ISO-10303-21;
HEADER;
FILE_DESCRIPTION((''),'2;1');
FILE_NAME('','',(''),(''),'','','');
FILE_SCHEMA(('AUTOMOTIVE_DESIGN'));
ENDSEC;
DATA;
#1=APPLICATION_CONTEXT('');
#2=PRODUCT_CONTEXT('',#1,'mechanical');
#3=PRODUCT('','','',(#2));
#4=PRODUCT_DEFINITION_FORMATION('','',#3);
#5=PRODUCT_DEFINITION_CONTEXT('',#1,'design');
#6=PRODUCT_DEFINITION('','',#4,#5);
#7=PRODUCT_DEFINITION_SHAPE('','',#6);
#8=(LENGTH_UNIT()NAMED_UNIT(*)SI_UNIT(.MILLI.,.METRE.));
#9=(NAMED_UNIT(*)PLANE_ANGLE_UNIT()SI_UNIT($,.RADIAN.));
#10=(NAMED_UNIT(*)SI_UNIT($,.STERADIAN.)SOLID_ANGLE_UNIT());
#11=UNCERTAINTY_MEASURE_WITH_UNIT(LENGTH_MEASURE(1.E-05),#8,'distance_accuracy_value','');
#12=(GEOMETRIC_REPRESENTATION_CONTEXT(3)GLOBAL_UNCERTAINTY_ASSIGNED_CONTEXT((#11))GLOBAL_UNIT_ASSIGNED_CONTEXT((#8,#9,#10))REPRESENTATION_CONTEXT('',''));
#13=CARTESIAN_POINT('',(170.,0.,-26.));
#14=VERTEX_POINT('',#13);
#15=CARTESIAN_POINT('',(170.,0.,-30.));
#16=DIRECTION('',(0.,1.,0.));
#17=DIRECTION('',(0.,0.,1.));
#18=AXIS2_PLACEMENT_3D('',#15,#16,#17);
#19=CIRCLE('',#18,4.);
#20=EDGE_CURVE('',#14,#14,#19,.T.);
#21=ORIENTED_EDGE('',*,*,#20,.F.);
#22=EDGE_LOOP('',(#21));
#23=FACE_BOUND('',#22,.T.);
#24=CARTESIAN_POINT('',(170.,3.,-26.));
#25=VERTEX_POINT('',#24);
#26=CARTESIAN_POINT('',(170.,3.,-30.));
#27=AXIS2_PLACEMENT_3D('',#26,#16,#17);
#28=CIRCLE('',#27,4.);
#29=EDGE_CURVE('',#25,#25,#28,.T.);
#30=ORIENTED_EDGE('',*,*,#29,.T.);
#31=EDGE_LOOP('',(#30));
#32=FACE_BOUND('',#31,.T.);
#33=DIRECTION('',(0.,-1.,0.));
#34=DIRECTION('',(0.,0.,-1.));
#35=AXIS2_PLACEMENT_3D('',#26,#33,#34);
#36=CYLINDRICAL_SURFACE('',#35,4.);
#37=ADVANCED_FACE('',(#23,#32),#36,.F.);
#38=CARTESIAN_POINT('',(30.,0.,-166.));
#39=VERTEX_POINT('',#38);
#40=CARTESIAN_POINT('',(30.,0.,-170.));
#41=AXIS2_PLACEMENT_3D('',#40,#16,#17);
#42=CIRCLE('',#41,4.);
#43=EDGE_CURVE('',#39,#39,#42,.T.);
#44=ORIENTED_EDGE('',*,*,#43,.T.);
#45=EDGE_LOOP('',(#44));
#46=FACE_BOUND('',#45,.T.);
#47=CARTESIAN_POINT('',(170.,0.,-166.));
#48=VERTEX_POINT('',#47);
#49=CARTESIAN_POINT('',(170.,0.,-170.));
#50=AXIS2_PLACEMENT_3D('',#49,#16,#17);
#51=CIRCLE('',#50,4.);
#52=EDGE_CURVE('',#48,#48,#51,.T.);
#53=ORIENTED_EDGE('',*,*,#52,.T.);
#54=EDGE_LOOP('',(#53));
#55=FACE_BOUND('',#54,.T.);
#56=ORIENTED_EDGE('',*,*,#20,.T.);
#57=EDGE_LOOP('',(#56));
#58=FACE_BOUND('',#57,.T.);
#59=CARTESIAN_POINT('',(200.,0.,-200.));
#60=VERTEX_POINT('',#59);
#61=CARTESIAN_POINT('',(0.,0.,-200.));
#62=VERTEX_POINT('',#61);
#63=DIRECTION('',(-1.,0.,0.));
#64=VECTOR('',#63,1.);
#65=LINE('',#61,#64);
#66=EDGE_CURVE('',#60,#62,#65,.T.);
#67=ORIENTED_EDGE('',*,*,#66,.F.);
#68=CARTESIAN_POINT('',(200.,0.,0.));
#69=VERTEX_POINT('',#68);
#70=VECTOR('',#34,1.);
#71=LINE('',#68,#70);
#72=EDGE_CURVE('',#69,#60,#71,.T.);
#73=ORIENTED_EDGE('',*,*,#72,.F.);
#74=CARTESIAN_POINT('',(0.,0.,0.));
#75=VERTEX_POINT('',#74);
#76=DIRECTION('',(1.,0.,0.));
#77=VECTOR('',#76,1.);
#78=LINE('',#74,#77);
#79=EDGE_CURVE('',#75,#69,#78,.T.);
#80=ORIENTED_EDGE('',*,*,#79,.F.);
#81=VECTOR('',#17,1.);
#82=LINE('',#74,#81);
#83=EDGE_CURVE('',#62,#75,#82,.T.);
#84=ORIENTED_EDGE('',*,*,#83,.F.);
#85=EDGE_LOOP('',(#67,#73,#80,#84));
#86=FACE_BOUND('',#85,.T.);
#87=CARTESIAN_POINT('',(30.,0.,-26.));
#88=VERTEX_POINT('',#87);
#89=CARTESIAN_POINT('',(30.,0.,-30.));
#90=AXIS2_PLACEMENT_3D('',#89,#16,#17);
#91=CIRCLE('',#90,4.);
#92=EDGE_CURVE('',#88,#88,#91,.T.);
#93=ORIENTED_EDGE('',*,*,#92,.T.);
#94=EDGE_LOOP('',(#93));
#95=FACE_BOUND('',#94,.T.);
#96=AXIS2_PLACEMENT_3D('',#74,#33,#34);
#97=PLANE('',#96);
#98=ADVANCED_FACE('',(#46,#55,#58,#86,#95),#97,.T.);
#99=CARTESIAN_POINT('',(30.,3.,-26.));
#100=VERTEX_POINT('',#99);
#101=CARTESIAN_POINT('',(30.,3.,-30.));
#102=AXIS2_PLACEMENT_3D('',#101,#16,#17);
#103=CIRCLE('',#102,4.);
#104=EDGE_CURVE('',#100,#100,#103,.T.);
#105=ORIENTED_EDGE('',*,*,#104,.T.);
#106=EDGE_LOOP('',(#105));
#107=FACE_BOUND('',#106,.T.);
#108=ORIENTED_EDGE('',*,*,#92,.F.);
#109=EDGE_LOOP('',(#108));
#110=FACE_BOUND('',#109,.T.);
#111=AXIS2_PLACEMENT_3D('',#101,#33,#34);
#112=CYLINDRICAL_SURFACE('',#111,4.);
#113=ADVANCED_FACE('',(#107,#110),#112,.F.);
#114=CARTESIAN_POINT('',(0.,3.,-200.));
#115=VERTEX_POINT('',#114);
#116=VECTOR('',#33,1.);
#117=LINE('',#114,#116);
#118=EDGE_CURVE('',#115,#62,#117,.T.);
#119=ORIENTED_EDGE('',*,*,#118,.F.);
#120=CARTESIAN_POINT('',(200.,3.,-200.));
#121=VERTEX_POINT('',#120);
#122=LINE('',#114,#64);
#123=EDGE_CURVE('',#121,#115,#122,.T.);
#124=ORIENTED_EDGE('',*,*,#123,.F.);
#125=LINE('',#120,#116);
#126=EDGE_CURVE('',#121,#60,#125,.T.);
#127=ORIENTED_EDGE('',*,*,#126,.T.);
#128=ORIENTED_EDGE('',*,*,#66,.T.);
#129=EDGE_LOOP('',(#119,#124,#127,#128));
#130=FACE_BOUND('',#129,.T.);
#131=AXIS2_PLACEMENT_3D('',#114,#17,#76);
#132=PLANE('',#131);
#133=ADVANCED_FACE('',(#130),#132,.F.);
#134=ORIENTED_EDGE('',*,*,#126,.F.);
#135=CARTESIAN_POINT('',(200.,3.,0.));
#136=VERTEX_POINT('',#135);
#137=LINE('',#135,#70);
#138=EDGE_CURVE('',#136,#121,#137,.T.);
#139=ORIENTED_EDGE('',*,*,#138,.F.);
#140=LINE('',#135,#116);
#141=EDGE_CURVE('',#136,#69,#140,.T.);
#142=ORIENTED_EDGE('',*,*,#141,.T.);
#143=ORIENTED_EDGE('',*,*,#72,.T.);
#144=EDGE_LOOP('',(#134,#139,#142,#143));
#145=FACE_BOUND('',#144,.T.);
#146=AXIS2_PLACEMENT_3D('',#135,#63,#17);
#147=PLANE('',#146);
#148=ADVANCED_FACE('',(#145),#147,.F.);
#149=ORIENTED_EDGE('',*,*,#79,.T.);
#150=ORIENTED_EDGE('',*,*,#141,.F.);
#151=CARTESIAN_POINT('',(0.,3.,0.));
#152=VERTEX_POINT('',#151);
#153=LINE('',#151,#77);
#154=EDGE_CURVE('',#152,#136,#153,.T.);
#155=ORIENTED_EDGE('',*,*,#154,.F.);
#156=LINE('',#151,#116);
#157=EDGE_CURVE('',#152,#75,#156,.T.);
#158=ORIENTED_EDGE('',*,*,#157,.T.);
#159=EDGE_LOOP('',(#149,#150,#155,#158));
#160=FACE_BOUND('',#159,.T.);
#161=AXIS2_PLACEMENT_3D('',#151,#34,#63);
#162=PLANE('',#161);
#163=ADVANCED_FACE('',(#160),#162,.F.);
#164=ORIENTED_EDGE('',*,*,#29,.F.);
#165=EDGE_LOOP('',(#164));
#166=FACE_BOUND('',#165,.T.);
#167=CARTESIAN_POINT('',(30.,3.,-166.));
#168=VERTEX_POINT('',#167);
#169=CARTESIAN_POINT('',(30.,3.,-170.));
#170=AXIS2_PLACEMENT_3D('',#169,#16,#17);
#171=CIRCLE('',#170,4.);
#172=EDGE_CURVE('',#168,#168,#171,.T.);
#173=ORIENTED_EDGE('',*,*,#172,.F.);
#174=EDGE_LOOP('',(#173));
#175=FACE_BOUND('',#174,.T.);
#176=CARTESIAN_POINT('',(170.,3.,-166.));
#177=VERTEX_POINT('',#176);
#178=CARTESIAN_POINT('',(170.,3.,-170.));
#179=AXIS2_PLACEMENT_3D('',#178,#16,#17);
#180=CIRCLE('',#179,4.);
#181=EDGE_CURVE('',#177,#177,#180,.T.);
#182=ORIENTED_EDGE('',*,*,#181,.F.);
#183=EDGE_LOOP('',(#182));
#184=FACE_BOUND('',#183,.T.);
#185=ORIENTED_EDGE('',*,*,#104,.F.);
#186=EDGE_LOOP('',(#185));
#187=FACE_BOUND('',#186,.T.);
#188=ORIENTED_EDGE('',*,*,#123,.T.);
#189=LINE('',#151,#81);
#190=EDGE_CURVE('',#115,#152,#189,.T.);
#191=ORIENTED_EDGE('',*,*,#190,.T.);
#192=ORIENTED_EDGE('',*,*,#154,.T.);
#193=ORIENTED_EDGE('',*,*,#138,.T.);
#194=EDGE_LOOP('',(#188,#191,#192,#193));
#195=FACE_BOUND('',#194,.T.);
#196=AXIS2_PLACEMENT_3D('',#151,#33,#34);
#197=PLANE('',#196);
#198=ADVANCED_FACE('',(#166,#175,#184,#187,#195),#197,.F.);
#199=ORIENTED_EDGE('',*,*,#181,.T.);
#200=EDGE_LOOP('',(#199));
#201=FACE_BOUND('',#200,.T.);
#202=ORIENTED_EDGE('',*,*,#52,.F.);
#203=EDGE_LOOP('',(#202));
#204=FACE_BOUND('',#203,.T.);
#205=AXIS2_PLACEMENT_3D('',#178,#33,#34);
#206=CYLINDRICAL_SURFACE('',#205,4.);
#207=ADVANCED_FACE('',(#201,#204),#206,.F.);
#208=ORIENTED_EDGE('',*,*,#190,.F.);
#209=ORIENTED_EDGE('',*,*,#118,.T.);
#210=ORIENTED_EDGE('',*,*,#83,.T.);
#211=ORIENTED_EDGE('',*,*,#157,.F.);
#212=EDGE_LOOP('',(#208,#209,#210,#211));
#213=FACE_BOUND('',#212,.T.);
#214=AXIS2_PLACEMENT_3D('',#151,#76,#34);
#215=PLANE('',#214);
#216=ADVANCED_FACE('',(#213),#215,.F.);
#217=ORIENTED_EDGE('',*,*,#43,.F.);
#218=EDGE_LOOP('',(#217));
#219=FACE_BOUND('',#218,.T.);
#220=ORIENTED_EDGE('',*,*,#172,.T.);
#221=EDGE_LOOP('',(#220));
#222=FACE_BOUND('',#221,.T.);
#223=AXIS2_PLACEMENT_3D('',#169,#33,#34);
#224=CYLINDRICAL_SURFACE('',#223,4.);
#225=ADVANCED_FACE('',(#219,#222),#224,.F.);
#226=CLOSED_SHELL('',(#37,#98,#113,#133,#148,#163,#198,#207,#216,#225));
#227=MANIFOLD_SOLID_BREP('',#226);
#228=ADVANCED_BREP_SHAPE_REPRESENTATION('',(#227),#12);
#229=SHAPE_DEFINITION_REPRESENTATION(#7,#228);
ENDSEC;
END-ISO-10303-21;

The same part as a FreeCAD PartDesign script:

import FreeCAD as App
import Part
import Sketcher

V = App.Vector

doc = App.newDocument("Part")
params = doc.addObject("Spreadsheet::Sheet", "Params")
for row, (alias, value) in enumerate([
    ("sketch1_diameter", "8 mm"),
    ("sketch1_width", "200 mm"),
    ("pad1_length", "3 mm"),
], start=1):
    params.set(f"A{row}", alias)
    params.set(f"B{row}", "=" + value)
    params.setAlias(f"B{row}", alias)

body = doc.addObject("PartDesign::Body", "Body")

# Sketch on XZ plane
sketch1 = doc.addObject("Sketcher::SketchObject", "Sketch")
body.addObject(sketch1)
sketch1.AttachmentSupport = (doc.XZ_Plane, [""])
sketch1.MapMode = "FlatFace"
sketch1.addGeometry(Part.LineSegment(V(0, -200, 0), V(0, 0, 0)), False)
sketch1.addGeometry(Part.LineSegment(V(0, 0, 0), V(200, 0, 0)), False)
sketch1.addGeometry(Part.LineSegment(V(200, 0, 0), V(200, -200, 0)), False)
sketch1.addGeometry(Part.LineSegment(V(200, -200, 0), V(0, -200, 0)), False)
sketch1.addGeometry(Part.Circle(V(30, -30, 0), V(0, 0, 1), 4), False)
sketch1.addGeometry(Part.Circle(V(170, -30, 0), V(0, 0, 1), 4), False)
sketch1.addGeometry(Part.Circle(V(30, -170, 0), V(0, 0, 1), 4), False)
sketch1.addGeometry(Part.Circle(V(170, -170, 0), V(0, 0, 1), 4), False)
sketch1.addConstraint(Sketcher.Constraint("Coincident", 0, 2, 1, 1))
sketch1.addConstraint(Sketcher.Constraint("Coincident", 1, 2, 2, 1))
sketch1.addConstraint(Sketcher.Constraint("Coincident", 2, 2, 3, 1))
sketch1.addConstraint(Sketcher.Constraint("Coincident", 3, 2, 0, 1))
sketch1.addConstraint(Sketcher.Constraint("Vertical", 0))
sketch1.addConstraint(Sketcher.Constraint("Horizontal", 1))
sketch1.addConstraint(Sketcher.Constraint("Vertical", 2))
sketch1.addConstraint(Sketcher.Constraint("Horizontal", 3))
sketch1.addConstraint(Sketcher.Constraint("Coincident", 0, 2, -1, 1))
sketch1.addConstraint(Sketcher.Constraint("Equal", 4, 5))
sketch1.addConstraint(Sketcher.Constraint("Equal", 5, 6))
sketch1.addConstraint(Sketcher.Constraint("Equal", 6, 7))
sketch1.addConstraint(Sketcher.Constraint("Horizontal", 4, 3, 5, 3))
sketch1.addConstraint(Sketcher.Constraint("Horizontal", 6, 3, 7, 3))
sketch1.addConstraint(Sketcher.Constraint("Vertical", 4, 3, 6, 3))
sketch1.addConstraint(Sketcher.Constraint("Vertical", 5, 3, 7, 3))
sketch1.addConstraint(Sketcher.Constraint("Equal", 3, 0))
sketch1.addConstraint(Sketcher.Constraint("Diameter", 4, 8.0))
sketch1.addConstraint(Sketcher.Constraint("DistanceX", 1, 1, 1, 2, 200.0))
sketch1.addConstraint(Sketcher.Constraint("DistanceX", -1, 1, 4, 3, 30.0))
sketch1.addConstraint(Sketcher.Constraint("DistanceY", 4, 3, -1, 1, 30.0))
sketch1.addConstraint(Sketcher.Constraint("DistanceX", -1, 1, 5, 3, 170.0))
sketch1.addConstraint(Sketcher.Constraint("DistanceY", 6, 3, -1, 1, 170.0))
sketch1.setExpression("Constraints[17]", "Params.sketch1_diameter")
sketch1.setExpression("Constraints[18]", "Params.sketch1_width")
pad1 = doc.addObject("PartDesign::Pad", "Pad")
body.addObject(pad1)
pad1.Profile = sketch1
pad1.setExpression("Length", "Params.pad1_length")
pad1.Reversed = True

doc.recompute()
